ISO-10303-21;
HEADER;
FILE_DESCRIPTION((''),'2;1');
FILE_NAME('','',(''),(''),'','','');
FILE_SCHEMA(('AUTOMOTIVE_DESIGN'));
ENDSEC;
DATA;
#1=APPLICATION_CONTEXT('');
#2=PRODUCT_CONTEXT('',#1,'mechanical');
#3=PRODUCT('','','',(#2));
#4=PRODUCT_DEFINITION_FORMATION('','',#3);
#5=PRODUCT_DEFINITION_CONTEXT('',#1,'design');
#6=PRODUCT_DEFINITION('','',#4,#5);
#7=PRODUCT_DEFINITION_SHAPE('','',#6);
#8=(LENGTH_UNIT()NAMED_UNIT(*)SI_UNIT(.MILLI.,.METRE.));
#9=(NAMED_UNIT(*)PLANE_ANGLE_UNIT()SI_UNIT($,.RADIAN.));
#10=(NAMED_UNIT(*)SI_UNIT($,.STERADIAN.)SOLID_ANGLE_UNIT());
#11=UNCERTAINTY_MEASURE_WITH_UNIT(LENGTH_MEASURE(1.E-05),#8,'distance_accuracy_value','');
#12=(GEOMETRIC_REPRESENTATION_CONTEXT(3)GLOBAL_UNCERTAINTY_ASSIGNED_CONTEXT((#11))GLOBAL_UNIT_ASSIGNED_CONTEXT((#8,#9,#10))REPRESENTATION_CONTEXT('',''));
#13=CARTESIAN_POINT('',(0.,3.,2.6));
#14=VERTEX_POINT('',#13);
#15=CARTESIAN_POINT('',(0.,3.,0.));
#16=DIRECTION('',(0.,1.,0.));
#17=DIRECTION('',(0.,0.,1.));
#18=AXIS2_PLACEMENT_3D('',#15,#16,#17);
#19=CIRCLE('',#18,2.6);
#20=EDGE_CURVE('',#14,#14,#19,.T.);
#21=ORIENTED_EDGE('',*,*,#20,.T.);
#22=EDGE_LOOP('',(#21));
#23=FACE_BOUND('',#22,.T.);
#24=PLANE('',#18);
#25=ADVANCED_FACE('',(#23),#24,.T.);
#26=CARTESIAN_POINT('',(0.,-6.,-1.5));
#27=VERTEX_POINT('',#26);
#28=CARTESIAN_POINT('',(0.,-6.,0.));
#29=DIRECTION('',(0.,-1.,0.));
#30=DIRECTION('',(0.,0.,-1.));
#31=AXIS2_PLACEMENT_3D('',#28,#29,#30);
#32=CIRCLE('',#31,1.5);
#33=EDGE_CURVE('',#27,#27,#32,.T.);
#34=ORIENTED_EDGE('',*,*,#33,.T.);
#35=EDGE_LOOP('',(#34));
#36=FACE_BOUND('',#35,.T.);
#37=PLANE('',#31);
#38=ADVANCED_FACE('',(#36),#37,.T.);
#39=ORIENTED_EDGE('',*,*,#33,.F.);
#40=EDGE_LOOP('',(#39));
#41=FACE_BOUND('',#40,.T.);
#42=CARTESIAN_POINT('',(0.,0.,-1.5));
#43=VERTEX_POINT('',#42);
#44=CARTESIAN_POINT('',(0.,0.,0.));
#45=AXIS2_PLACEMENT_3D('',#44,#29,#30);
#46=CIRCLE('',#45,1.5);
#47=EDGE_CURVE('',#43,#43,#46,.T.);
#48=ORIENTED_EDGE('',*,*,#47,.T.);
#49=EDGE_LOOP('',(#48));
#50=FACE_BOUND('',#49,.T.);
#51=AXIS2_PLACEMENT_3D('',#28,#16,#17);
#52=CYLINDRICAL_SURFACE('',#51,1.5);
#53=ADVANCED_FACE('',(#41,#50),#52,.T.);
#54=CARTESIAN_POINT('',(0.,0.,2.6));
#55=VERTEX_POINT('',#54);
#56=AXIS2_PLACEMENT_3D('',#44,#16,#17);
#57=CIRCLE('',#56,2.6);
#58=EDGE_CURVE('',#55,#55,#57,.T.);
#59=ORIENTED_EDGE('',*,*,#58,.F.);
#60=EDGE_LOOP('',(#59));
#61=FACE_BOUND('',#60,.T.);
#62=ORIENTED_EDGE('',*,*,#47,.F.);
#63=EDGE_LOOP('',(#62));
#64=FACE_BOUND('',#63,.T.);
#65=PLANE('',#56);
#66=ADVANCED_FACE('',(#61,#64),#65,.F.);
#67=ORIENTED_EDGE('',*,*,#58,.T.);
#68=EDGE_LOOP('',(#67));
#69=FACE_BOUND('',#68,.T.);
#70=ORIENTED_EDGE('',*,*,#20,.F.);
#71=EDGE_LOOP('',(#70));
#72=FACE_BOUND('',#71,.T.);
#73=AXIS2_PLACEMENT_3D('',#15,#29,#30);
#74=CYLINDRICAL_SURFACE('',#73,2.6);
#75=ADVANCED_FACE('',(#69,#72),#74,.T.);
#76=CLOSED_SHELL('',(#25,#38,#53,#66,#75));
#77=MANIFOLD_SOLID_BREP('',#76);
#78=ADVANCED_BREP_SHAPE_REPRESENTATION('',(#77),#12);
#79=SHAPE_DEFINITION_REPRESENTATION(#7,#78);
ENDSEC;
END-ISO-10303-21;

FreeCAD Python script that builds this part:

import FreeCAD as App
import Part
import Sketcher

V = App.Vector
Q = App.Units.Quantity

doc = App.newDocument("Part")
body = doc.addObject("PartDesign::Body", "Body")

sketch1 = body.newObject("Sketcher::SketchObject", "Sketch")
sketch1.AttachmentSupport = (doc.getObject("XZ_Plane"), [""])
sketch1.MapMode = "FlatFace"
sketch1.addGeometry(Part.Circle(V(0, 0, 0), V(0, 0, 1), 2.6), False)
sketch1.addConstraint([
    Sketcher.Constraint("Coincident", 0, 3, -1, 1),
    Sketcher.Constraint("Diameter", 0, Q("5.2 mm")),
])
pad1 = body.newObject("PartDesign::Pad", "Pad")
pad1.Profile = sketch1
pad1.Length = 3
pad1.Reversed = True

sketch2 = body.newObject("Sketcher::SketchObject", "Sketch001")
sketch2.AttachmentSupport = (doc.getObject("XZ_Plane"), [""])
sketch2.MapMode = "FlatFace"
sketch2.addGeometry(Part.Circle(V(0, 0, 0), V(0, 0, 1), 1.5), False)
sketch2.addConstraint([
    Sketcher.Constraint("Coincident", 0, 3, -1, 1),
    Sketcher.Constraint("Diameter", 0, Q("3 mm")),
])
pad2 = body.newObject("PartDesign::Pad", "Pad001")
pad2.Profile = sketch2
pad2.Length = 6

doc.recompute()
